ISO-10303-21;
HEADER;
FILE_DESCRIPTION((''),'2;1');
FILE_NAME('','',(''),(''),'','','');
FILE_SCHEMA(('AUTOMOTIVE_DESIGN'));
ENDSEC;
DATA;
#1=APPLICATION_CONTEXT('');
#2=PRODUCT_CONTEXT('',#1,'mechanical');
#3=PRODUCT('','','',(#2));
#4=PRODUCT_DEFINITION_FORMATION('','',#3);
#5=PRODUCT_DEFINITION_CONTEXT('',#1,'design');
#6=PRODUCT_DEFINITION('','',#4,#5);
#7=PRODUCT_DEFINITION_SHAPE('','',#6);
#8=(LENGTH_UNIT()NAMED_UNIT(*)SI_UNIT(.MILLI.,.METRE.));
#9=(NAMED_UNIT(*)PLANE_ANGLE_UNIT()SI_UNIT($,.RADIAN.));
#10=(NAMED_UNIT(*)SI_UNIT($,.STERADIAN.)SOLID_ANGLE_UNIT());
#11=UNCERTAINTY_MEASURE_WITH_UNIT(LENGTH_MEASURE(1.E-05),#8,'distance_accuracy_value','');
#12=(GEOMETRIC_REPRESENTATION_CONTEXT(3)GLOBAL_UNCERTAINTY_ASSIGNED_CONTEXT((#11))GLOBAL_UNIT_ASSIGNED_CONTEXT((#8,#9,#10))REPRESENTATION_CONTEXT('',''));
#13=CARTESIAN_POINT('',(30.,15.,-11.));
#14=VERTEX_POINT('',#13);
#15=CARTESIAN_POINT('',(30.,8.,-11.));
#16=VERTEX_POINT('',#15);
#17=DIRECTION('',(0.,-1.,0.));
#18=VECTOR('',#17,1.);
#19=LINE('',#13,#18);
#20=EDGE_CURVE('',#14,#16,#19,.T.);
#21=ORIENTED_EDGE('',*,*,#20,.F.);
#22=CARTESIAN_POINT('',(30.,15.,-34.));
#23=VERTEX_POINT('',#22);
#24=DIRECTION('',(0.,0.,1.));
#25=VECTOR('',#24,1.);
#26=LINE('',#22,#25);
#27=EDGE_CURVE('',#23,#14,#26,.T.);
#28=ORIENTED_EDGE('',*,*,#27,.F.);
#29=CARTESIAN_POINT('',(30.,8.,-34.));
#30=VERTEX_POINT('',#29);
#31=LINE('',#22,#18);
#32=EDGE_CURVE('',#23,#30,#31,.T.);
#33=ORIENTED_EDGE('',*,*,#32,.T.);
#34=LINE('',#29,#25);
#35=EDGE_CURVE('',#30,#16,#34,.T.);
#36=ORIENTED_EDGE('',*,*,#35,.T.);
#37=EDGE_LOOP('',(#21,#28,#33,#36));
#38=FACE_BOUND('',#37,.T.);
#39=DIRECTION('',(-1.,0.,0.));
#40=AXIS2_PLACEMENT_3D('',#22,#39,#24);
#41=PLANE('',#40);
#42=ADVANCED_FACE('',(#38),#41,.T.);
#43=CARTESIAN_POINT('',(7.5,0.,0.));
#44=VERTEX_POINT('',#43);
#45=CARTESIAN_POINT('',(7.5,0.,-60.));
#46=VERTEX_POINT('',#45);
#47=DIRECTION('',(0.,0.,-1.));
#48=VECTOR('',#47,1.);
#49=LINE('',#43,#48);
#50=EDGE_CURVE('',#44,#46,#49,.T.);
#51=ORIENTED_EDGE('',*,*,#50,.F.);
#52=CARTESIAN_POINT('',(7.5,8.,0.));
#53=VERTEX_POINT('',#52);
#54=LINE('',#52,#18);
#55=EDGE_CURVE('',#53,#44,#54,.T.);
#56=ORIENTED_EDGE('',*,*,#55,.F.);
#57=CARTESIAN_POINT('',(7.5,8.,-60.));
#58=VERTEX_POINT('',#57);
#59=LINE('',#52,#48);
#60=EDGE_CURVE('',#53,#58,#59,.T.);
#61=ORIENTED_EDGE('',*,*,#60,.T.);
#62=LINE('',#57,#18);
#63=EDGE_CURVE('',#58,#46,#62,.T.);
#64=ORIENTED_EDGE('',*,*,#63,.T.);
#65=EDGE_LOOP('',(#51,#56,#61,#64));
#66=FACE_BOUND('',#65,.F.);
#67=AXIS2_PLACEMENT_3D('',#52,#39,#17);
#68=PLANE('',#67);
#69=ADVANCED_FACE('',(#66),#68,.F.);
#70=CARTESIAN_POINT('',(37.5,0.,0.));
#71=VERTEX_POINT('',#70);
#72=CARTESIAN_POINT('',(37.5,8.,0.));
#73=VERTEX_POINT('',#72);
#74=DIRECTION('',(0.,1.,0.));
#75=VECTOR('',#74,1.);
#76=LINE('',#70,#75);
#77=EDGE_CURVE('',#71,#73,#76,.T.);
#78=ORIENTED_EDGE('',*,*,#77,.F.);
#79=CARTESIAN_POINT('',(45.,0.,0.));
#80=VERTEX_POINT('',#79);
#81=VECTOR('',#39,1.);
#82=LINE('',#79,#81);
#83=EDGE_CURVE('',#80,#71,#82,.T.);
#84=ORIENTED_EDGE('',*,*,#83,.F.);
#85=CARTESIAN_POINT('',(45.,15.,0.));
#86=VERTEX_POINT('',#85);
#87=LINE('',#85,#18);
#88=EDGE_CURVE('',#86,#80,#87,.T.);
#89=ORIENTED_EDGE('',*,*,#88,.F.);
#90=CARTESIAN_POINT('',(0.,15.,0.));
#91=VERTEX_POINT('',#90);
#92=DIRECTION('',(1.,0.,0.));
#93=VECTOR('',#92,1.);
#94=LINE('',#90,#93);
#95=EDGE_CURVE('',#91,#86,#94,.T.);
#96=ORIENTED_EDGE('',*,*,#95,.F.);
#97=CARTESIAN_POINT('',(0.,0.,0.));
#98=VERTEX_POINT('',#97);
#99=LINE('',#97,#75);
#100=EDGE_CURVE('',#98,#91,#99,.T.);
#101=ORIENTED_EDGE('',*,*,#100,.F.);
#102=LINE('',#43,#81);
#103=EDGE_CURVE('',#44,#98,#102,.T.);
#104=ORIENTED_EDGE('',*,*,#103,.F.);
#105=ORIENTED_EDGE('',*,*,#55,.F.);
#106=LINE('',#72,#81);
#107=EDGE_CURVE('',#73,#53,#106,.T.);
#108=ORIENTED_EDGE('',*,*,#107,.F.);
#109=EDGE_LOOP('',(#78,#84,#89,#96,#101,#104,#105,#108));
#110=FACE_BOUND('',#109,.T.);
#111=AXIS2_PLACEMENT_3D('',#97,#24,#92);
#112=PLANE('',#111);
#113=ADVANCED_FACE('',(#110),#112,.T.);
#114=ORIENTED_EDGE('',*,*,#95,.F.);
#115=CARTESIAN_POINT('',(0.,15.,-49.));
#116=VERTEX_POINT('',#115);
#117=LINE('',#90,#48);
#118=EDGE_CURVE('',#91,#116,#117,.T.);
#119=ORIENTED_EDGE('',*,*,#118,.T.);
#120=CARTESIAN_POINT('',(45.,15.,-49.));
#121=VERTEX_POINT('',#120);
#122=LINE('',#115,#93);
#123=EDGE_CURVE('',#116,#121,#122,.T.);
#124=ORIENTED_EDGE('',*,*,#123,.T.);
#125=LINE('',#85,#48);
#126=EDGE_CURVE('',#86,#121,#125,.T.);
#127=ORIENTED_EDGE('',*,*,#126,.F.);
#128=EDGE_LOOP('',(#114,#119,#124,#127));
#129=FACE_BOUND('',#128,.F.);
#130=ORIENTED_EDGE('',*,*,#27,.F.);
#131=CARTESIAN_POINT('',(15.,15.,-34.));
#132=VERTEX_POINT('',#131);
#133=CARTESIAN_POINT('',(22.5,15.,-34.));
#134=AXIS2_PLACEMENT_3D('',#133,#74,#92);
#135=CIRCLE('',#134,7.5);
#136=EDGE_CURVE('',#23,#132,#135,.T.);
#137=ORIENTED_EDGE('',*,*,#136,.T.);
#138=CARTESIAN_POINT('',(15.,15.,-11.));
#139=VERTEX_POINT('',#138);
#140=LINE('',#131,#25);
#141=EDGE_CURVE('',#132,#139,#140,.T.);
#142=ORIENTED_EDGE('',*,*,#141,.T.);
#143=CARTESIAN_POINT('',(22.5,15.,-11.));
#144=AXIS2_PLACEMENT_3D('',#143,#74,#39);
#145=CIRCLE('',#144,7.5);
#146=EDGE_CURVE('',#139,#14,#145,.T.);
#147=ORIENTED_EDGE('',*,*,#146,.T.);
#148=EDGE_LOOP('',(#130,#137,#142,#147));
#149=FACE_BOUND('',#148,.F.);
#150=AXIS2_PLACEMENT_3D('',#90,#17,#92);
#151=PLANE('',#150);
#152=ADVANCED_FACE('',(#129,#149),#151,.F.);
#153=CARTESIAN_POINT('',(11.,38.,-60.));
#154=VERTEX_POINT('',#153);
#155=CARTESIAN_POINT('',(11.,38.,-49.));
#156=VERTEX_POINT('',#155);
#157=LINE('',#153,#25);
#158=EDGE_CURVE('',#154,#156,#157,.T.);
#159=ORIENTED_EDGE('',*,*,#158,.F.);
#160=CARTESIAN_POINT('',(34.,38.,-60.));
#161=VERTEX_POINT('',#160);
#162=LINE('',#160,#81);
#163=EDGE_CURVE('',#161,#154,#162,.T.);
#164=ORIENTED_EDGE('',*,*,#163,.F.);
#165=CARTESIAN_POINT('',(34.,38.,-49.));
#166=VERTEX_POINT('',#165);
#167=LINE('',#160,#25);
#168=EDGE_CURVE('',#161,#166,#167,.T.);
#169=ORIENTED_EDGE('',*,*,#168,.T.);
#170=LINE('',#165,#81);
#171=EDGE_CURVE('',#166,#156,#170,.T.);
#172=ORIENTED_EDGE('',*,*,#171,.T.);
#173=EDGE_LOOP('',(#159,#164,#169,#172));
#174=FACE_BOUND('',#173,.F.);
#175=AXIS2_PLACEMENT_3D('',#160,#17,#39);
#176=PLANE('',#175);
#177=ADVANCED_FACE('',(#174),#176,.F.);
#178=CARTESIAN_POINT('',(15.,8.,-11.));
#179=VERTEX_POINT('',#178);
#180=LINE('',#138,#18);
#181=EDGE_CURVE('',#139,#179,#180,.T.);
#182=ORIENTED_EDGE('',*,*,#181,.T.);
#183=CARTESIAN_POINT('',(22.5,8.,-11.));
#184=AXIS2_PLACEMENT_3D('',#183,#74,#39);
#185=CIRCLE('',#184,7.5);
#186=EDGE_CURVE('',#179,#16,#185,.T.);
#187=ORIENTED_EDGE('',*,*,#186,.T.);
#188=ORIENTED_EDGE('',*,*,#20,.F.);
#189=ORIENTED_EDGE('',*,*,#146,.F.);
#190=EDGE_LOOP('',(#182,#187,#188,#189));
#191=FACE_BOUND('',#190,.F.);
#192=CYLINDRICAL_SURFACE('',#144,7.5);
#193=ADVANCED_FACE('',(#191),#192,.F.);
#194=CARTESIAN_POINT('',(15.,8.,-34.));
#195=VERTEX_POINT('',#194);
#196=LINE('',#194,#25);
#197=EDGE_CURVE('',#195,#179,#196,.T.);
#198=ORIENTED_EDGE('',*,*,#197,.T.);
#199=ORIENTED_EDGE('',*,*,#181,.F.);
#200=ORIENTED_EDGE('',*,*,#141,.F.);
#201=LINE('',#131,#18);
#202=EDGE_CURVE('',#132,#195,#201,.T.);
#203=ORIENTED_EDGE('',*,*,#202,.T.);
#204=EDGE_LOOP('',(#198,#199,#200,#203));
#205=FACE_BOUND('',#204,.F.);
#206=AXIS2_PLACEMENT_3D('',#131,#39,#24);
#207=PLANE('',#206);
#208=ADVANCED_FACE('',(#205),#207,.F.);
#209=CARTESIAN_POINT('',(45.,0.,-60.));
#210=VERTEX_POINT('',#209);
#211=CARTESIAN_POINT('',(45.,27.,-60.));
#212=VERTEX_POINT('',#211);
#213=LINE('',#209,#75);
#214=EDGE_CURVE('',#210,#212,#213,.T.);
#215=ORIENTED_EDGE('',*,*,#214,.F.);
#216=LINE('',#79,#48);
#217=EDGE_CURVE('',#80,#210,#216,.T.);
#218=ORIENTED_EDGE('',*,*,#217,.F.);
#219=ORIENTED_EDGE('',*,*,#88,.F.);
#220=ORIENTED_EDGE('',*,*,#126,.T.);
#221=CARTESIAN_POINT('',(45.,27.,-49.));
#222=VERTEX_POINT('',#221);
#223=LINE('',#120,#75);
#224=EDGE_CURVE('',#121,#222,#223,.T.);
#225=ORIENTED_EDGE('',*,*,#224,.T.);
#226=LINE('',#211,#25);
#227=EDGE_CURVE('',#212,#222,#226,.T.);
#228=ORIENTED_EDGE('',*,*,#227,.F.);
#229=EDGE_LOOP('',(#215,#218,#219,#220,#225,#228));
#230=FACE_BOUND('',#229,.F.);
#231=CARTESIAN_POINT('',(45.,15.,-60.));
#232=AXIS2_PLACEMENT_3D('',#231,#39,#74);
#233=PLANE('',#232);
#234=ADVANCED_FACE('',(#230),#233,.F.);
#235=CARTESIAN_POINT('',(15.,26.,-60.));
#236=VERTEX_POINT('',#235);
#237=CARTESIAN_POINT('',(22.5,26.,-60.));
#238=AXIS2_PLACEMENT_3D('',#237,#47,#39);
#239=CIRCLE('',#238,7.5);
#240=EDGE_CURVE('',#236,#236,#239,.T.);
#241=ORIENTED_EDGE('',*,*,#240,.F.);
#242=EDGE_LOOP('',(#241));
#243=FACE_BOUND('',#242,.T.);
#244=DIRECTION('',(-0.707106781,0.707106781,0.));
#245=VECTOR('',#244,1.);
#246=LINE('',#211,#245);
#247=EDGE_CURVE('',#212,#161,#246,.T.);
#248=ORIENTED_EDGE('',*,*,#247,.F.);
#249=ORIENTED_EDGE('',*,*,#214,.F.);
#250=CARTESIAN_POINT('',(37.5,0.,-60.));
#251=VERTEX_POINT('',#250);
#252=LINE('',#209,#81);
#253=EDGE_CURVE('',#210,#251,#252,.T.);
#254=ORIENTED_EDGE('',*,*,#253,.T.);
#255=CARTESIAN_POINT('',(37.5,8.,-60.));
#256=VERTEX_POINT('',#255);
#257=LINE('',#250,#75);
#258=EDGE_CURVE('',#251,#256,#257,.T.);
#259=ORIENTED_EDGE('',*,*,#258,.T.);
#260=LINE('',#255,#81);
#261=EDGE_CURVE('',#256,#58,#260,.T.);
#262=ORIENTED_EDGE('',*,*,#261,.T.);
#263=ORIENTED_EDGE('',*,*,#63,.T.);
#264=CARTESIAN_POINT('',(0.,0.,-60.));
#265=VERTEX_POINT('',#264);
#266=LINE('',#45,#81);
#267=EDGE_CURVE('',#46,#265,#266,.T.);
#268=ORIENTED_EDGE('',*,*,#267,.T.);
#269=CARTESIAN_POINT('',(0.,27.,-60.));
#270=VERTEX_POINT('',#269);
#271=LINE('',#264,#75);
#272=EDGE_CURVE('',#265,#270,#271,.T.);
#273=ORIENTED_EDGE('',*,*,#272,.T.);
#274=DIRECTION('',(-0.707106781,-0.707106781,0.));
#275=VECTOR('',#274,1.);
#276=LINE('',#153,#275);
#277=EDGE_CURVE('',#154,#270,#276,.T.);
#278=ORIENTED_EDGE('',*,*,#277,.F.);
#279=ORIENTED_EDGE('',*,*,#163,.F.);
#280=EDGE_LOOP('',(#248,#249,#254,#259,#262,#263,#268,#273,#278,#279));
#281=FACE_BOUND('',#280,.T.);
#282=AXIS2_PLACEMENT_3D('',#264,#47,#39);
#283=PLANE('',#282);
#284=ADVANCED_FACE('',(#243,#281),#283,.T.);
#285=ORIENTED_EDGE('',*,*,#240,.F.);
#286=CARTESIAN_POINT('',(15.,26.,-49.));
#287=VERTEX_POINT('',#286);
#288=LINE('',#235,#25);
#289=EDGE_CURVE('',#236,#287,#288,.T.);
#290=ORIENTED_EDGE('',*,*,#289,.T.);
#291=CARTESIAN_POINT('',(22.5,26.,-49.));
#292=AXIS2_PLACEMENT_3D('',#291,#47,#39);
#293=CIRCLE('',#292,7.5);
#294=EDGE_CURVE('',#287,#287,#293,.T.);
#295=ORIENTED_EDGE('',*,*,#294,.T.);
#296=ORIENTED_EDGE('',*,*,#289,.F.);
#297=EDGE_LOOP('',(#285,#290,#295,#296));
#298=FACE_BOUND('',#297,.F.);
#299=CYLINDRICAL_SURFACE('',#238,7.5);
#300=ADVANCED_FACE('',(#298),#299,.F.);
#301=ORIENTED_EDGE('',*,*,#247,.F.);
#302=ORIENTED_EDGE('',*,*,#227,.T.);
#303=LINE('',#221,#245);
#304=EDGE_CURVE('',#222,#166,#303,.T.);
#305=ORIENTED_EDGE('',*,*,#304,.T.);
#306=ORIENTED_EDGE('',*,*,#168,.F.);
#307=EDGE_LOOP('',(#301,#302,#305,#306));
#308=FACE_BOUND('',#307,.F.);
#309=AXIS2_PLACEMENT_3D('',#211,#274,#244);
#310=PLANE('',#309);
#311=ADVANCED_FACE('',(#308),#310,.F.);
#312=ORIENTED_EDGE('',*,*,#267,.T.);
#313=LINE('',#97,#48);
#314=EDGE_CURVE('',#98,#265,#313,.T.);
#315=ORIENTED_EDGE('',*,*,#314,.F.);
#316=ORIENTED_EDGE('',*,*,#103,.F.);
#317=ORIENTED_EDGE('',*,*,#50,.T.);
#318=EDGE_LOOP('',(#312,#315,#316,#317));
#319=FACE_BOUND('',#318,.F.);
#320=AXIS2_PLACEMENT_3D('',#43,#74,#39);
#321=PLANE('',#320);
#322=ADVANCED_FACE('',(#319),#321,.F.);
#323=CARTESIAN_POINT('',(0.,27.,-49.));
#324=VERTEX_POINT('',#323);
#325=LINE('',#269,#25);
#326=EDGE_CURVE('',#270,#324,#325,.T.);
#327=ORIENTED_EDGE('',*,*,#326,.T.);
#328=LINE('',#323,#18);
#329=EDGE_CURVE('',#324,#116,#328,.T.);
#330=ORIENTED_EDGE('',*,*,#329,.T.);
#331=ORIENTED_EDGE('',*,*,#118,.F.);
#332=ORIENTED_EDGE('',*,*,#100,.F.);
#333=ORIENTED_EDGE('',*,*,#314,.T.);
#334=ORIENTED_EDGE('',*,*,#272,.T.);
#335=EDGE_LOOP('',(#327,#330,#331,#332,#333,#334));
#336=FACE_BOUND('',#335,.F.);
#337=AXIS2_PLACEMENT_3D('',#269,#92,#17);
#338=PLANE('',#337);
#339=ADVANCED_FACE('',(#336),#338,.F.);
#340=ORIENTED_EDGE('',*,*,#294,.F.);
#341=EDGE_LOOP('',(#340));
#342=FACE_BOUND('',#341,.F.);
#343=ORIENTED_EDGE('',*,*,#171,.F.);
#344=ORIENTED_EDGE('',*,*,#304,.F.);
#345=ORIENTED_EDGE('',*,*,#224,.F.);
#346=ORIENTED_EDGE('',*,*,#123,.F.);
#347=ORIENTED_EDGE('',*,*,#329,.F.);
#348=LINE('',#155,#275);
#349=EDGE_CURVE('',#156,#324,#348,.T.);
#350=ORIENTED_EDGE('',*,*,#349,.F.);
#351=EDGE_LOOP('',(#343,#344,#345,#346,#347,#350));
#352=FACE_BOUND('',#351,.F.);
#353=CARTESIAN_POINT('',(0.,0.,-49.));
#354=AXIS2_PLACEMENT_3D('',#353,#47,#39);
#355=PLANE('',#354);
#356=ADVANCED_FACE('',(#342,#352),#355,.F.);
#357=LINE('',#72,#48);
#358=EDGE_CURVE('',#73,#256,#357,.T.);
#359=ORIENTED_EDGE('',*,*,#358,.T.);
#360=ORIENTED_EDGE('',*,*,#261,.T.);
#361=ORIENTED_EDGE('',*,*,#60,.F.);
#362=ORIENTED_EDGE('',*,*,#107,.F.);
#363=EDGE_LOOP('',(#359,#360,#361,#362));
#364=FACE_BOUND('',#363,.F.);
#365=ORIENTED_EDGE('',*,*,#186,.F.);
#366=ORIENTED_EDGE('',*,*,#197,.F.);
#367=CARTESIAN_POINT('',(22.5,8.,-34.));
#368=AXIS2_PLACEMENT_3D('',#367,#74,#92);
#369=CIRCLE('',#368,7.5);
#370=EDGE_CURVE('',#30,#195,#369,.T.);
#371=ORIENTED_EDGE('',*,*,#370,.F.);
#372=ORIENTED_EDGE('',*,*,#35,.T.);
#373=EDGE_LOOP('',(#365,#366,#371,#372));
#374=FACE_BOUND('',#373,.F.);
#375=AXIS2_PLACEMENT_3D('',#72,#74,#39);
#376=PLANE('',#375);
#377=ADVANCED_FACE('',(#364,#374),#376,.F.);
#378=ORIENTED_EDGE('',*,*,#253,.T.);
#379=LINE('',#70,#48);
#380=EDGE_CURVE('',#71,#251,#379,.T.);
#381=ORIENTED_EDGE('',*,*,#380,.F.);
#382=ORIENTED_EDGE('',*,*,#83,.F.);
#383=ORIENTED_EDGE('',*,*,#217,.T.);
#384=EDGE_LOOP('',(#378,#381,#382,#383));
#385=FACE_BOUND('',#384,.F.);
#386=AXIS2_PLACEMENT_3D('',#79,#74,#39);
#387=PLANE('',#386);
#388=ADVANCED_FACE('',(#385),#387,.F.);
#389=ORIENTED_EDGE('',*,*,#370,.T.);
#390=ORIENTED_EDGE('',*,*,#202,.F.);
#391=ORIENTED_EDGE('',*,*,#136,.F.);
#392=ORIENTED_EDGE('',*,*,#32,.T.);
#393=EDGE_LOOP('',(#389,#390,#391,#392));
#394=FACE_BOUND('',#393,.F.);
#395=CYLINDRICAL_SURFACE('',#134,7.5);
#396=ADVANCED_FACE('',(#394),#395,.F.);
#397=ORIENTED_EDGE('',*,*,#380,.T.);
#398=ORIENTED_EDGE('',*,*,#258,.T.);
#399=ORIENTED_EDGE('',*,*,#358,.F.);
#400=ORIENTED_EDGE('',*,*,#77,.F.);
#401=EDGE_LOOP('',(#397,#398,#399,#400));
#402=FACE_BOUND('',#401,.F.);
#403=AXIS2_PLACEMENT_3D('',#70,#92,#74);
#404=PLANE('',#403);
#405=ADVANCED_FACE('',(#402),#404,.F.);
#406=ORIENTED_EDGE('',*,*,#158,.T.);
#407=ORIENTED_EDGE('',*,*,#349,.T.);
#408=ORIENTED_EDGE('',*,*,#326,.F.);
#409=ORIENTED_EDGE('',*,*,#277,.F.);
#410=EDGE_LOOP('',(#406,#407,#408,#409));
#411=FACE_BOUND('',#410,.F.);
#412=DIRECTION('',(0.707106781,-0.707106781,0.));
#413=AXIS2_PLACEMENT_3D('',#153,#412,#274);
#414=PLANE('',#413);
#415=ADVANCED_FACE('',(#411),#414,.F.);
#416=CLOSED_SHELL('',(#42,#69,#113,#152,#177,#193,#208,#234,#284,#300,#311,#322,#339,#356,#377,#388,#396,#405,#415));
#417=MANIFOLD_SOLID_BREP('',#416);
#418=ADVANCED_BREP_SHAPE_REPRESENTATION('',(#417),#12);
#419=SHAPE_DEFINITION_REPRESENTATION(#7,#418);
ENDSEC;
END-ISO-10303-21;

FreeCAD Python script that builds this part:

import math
import FreeCAD as App
import Part
import Sketcher

V = App.Vector
Q = App.Units.Quantity


def add_polygon(sketch, points):
    """Adds a closed chain of lines whose ends are joined by coincident constraints."""
    first, n = sketch.GeometryCount, len(points)
    for a, b in zip(points, points[1:] + points[:1]):
        sketch.addGeometry(Part.LineSegment(App.Vector(*a, 0), App.Vector(*b, 0)), False)
    for i in range(n):
        sketch.addConstraint(Sketcher.Constraint("Coincident", first + i, 2, first + (i + 1) % n, 1))

doc = App.newDocument("Part")
body = doc.addObject("PartDesign::Body", "Body")

sketch1 = body.newObject("Sketcher::SketchObject", "Sketch")
sketch1.AttachmentSupport = (doc.getObject("XY_Plane"), [""])
sketch1.MapMode = "FlatFace"
add_polygon(sketch1, [(0, 15), (0, 0), (7.5, 0), (7.5, 8), (37.5, 8), (37.5, 0), (45, 0), (45, 15)])
sketch1.addConstraint([
    Sketcher.Constraint("Vertical", 0),
    Sketcher.Constraint("Horizontal", 1),
    Sketcher.Constraint("Vertical", 2),
    Sketcher.Constraint("Horizontal", 3),
    Sketcher.Constraint("Vertical", 4),
    Sketcher.Constraint("Horizontal", 5),
    Sketcher.Constraint("Vertical", 6),
    Sketcher.Constraint("Horizontal", 7),
    Sketcher.Constraint("Coincident", 0, 2, -1, 1),
    Sketcher.Constraint("PointOnObject", 4, 2, -1),
    Sketcher.Constraint("Equal", 1, 5),
    Sketcher.Constraint("DistanceX", 3, 1, 3, 2, Q("30 mm")),
    Sketcher.Constraint("DistanceX", 7, 2, 7, 1, Q("45 mm")),
    Sketcher.Constraint("DistanceY", 0, 2, 0, 1, Q("15 mm")),
    Sketcher.Constraint("DistanceY", 2, 1, 2, 2, Q("8 mm")),
])
pad1 = body.newObject("PartDesign::Pad", "Pad")
pad1.Profile = sketch1
pad1.Length = 60
pad1.Reversed = True

sketch2 = body.newObject("Sketcher::SketchObject", "Sketch001")
sketch2.AttachmentSupport = (doc.getObject("XZ_Plane"), [""])
sketch2.MapMode = "FlatFace"
sketch2.AttachmentOffset = App.Placement(V(0, 0, -15), App.Rotation())
sketch2.addGeometry([
    Part.ArcOfCircle(Part.Circle(V(22.5, -34, 0), V(0, 0, 1), 7.5), math.radians(180), math.radians(360)),
    Part.LineSegment(V(15, -34, 0), V(15, -11, 0)),
    Part.ArcOfCircle(Part.Circle(V(22.5, -11, 0), V(0, 0, 1), 7.5), math.radians(0), math.radians(180)),
    Part.LineSegment(V(30, -11, 0), V(30, -34, 0)),
], False)
sketch2.addConstraint([
    Sketcher.Constraint("Tangent", 0, 1, 1, 1),
    Sketcher.Constraint("Tangent", 1, 2, 2, 2),
    Sketcher.Constraint("Tangent", 2, 1, 3, 1),
    Sketcher.Constraint("Tangent", 3, 2, 0, 2),
    Sketcher.Constraint("Vertical", 1),
    Sketcher.Constraint("Vertical", 3),
    Sketcher.Constraint("Radius", 0, Q("7.5 mm")),
    Sketcher.Constraint("DistanceY", 1, 1, 1, 2, Q("23 mm")),
    Sketcher.Constraint("DistanceY", 2, 3, -1, 1, Q("11 mm")),
    Sketcher.Constraint("DistanceX", -1, 1, 0, 1, Q("15 mm")),
])
pocket1 = body.newObject("PartDesign::Pocket", "Pocket")
pocket1.Profile = sketch2
pocket1.Length = 7
pocket1.Reversed = True

sketch3 = body.newObject("Sketcher::SketchObject", "Sketch002")
sketch3.AttachmentSupport = (doc.getObject("XY_Plane"), [""])
sketch3.MapMode = "FlatFace"
sketch3.AttachmentOffset = App.Placement(V(0, 0, -60), App.Rotation())
add_polygon(sketch3, [(45, 27), (45, 15), (0, 15), (0, 27), (11, 38), (34, 38)])
sketch3.addGeometry(Part.Circle(V(22.5, 26, 0), V(0, 0, 1), 7.5), False)
sketch3.addConstraint([
    Sketcher.Constraint("Vertical", 0),
    Sketcher.Constraint("Horizontal", 1),
    Sketcher.Constraint("Vertical", 2),
    Sketcher.Constraint("Horizontal", 4),
    Sketcher.Constraint("PointOnObject", 1, 2, -2),
    Sketcher.Constraint("Perpendicular", 3, 5),
    Sketcher.Constraint("Horizontal", 2, 2, 5, 2),
    Sketcher.Constraint("Equal", 3, 5),
    Sketcher.Constraint("Diameter", 6, Q("15 mm")),
    Sketcher.Constraint("DistanceY", -1, 1, 0, 2, Q("15 mm")),
    Sketcher.Constraint("DistanceX", -1, 1, 3, 2, Q("11 mm")),
    Sketcher.Constraint("DistanceY", -1, 1, 3, 2, Q("38 mm")),
    Sketcher.Constraint("DistanceY", 0, 2, 6, 3, Q("11 mm")),
    Sketcher.Constraint("DistanceX", -1, 1, 6, 3, Q("22.5 mm")),
    Sketcher.Constraint("DistanceX", 6, 3, 0, 2, Q("22.5 mm")),
])
pad2 = body.newObject("PartDesign::Pad", "Pad001")
pad2.Profile = sketch3
pad2.Length = 11

doc.recompute()
